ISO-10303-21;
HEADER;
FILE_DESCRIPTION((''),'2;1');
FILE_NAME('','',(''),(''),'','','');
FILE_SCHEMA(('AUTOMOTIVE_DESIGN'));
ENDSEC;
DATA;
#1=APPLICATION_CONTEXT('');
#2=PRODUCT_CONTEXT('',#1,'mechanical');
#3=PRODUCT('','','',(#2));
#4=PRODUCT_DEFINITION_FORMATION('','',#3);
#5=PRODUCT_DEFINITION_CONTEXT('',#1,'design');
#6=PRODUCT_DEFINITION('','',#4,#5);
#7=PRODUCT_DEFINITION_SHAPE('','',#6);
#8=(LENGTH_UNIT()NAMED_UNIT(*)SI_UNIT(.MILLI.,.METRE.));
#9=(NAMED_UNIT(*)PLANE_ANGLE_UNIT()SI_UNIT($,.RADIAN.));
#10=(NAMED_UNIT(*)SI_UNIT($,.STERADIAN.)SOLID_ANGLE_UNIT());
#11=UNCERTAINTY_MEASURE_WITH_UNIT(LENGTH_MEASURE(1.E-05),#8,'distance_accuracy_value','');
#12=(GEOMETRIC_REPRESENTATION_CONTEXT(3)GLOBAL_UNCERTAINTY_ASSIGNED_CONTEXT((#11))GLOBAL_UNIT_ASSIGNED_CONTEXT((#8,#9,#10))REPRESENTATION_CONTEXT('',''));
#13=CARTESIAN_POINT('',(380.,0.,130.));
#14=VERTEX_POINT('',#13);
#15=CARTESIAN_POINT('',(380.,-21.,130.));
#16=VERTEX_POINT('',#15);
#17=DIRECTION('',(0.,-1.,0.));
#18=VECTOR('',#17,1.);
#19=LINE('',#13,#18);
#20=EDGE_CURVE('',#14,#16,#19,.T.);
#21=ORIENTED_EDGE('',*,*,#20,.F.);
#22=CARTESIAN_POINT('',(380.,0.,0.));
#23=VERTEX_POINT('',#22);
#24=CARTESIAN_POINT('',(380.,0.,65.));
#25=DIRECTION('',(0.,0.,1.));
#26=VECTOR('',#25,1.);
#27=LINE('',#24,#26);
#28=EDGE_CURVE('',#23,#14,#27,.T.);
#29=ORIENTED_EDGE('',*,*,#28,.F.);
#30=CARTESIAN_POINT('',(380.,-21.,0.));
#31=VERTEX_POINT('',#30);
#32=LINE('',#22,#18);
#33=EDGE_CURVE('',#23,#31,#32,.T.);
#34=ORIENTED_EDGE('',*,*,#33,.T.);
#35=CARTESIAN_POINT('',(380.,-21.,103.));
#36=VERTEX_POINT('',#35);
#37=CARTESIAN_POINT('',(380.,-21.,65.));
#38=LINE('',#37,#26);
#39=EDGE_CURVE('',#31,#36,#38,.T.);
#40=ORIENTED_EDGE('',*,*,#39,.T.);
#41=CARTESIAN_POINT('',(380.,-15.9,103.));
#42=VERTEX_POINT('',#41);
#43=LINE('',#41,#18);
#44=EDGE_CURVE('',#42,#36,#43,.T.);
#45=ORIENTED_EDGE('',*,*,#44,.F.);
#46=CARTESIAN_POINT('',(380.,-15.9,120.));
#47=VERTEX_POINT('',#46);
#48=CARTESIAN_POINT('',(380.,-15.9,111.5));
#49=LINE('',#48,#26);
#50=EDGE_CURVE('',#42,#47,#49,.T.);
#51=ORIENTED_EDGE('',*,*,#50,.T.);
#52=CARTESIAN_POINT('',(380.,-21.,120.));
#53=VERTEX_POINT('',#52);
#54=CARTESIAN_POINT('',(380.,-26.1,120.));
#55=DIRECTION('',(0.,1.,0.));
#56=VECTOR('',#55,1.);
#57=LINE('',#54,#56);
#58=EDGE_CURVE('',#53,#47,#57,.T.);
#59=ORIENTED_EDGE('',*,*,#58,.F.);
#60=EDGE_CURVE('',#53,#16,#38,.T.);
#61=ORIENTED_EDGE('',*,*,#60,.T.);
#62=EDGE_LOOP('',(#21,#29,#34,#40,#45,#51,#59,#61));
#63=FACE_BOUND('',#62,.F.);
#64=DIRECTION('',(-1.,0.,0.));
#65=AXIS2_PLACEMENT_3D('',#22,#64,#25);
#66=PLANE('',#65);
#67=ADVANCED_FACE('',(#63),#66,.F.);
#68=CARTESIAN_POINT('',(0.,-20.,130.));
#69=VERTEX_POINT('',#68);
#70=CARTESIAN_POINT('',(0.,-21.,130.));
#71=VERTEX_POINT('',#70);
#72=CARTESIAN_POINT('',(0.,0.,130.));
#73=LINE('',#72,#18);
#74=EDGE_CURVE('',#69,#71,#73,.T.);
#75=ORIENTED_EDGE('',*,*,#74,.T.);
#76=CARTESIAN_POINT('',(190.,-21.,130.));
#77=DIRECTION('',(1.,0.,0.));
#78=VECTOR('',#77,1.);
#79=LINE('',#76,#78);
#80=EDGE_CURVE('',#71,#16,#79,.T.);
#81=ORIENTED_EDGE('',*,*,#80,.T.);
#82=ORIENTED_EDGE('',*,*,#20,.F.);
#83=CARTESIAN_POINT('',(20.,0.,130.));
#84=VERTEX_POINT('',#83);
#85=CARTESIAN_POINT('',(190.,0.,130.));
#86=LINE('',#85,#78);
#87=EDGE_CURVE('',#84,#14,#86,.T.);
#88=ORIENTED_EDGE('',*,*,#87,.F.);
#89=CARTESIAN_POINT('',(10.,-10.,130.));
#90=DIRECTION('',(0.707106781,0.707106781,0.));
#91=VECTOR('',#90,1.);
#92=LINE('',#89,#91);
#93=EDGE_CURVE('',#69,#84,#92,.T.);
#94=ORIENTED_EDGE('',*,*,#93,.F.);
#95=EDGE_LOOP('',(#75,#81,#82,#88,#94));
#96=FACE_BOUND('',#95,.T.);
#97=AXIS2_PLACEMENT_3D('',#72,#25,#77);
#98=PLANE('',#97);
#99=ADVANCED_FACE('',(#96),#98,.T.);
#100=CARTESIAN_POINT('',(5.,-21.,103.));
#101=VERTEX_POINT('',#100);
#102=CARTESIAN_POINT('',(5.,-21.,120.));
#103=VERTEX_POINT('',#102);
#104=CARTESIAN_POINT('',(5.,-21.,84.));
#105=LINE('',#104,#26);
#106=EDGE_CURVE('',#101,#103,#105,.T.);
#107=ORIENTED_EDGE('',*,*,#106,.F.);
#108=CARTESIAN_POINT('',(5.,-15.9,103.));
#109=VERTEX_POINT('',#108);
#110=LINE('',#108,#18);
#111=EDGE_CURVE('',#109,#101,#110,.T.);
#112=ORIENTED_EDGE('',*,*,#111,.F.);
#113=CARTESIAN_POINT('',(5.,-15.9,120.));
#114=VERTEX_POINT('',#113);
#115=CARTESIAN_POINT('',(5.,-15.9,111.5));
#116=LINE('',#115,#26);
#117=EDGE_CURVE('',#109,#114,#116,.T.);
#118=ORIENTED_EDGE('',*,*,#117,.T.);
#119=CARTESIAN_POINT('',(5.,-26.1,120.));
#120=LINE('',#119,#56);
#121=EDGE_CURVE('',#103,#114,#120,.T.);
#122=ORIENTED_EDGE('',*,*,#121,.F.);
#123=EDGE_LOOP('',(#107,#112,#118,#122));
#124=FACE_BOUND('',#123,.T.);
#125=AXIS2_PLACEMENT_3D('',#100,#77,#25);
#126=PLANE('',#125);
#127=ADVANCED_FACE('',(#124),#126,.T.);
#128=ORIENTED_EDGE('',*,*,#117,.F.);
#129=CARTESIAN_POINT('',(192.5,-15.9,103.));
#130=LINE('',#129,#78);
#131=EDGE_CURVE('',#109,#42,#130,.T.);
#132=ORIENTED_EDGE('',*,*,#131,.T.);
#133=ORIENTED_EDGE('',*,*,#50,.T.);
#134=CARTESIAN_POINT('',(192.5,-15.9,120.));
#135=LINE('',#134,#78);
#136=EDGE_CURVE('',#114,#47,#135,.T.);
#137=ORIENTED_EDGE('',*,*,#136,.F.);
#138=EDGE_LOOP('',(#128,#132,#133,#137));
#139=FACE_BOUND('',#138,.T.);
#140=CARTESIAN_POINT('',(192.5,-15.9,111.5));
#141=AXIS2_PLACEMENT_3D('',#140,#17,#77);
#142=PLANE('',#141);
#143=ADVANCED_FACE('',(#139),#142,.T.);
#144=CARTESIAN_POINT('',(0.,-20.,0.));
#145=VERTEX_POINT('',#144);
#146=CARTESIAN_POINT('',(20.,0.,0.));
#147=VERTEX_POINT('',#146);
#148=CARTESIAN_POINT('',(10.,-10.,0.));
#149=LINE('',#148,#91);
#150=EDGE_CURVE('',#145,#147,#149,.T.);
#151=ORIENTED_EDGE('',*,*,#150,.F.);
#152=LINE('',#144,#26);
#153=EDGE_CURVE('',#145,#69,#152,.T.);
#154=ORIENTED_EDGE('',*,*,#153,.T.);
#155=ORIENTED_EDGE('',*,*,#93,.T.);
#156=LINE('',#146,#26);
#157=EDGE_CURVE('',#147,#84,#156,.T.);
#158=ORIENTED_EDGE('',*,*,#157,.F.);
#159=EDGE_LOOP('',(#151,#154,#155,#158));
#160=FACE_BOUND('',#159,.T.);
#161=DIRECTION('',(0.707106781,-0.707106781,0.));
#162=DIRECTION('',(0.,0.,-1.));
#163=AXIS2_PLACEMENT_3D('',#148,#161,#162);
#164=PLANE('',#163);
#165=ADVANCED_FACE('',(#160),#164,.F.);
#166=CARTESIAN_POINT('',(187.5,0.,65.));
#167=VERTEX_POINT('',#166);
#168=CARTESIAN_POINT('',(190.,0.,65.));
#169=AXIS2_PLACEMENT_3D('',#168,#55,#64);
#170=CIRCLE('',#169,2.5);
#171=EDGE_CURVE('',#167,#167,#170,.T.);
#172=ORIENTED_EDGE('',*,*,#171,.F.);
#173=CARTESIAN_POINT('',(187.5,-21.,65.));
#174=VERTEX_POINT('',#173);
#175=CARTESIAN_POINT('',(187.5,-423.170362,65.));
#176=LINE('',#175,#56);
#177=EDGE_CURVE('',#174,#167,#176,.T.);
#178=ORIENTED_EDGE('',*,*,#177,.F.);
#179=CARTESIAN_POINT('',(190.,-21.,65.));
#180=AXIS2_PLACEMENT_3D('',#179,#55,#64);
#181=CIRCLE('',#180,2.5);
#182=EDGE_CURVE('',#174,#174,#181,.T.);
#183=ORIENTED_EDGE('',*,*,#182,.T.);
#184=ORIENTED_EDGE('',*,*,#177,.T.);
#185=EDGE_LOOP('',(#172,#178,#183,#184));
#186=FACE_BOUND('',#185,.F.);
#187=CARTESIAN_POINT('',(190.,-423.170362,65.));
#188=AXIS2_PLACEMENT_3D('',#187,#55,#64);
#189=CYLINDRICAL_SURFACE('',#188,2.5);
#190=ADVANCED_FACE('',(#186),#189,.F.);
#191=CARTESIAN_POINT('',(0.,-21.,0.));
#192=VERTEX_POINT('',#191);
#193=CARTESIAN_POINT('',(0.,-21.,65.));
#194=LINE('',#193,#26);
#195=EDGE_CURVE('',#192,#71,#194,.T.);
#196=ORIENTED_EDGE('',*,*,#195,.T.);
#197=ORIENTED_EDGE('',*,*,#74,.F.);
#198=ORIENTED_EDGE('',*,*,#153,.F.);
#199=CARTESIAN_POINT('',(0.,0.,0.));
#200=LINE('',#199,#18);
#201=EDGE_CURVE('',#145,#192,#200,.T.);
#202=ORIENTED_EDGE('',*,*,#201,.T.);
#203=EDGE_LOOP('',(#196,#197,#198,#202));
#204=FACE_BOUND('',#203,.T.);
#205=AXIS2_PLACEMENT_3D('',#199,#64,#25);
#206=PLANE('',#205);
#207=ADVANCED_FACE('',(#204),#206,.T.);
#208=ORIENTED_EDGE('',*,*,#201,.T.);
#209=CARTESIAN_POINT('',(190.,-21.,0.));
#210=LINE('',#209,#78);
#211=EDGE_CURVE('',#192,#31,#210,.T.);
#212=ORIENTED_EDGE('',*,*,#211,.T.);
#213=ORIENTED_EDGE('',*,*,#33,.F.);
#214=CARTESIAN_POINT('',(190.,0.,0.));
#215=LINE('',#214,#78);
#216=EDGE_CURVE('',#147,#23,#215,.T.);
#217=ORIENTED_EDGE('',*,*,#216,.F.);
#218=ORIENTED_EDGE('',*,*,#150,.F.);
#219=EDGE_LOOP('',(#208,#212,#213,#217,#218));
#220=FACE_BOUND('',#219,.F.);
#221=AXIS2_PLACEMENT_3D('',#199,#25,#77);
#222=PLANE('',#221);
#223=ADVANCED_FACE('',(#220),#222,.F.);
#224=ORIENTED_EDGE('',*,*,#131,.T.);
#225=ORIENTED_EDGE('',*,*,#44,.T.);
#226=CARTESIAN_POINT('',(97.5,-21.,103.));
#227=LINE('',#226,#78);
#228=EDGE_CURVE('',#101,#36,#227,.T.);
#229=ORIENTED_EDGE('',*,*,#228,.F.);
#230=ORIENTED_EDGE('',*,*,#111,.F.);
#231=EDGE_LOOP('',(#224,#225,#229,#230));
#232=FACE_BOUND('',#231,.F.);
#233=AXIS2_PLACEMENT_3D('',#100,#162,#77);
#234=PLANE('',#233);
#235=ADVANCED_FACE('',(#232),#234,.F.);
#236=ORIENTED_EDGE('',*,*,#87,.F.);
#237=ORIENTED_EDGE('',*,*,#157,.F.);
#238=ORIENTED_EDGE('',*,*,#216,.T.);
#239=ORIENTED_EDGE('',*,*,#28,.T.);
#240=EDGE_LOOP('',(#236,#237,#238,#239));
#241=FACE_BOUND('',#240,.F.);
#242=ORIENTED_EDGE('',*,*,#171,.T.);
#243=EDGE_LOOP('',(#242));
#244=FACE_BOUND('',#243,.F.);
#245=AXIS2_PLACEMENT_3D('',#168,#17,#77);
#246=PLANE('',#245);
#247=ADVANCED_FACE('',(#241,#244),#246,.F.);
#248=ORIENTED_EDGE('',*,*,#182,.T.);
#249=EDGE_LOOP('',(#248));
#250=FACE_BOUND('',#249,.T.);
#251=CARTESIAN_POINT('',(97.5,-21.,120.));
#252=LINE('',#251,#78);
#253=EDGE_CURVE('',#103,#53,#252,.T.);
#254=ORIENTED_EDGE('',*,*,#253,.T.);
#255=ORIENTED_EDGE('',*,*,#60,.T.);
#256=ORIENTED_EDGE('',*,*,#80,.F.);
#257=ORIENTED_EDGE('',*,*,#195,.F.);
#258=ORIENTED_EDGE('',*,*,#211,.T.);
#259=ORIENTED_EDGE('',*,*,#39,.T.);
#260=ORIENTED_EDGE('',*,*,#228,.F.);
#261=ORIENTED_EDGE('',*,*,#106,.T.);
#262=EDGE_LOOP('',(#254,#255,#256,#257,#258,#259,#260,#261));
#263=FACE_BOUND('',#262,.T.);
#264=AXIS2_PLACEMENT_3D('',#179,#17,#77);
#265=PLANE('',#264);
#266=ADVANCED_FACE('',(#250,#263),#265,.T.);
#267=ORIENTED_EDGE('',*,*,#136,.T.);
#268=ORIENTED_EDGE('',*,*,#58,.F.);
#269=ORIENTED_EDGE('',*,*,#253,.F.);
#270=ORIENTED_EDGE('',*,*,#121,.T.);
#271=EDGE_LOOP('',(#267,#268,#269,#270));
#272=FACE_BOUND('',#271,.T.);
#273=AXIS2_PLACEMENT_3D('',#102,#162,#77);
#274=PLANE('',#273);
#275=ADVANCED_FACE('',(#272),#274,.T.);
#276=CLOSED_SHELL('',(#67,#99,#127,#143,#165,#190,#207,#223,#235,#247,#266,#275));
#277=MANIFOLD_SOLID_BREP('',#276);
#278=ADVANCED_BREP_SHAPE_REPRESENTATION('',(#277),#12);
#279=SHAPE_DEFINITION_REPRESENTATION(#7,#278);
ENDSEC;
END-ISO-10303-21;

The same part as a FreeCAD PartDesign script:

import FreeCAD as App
import Part
import Sketcher
Q = App.Units.Quantity


def edges_at(feature, points):
    """Names of the edges that pass closest to the given points."""
    edges = feature.Shape.Edges
    near = lambda p: min(range(len(edges)), key=lambda i: edges[i].distToShape(Part.Vertex(*p))[0])
    return sorted({f"Edge{near(p) + 1}" for p in points})

doc = App.newDocument("Part")
body = doc.addObject("PartDesign::Body", "Body")

sketch1 = body.newObject("Sketcher::SketchObject", "Sketch")
sketch1.AttachmentSupport = (doc.getObject("XZ_Plane"), [""])
sketch1.MapMode = "FlatFace"
sketch1.addGeometry(Part.LineSegment(App.Vector(0, 130, 0), App.Vector(0, 0, 0)), False)
sketch1.addGeometry(Part.LineSegment(App.Vector(0, 0, 0), App.Vector(380, 0, 0)), False)
sketch1.addGeometry(Part.LineSegment(App.Vector(380, 0, 0), App.Vector(380, 130, 0)), False)
sketch1.addGeometry(Part.LineSegment(App.Vector(380, 130, 0), App.Vector(0, 130, 0)), False)
sketch1.addConstraint(Sketcher.Constraint("Coincident", 0, 2, 1, 1))
sketch1.addConstraint(Sketcher.Constraint("Coincident", 1, 2, 2, 1))
sketch1.addConstraint(Sketcher.Constraint("Coincident", 2, 2, 3, 1))
sketch1.addConstraint(Sketcher.Constraint("Coincident", 3, 2, 0, 1))
sketch1.addConstraint(Sketcher.Constraint("Vertical", 0))
sketch1.addConstraint(Sketcher.Constraint("Horizontal", 1))
sketch1.addConstraint(Sketcher.Constraint("Vertical", 2))
sketch1.addConstraint(Sketcher.Constraint("Horizontal", 3))
sketch1.addConstraint(Sketcher.Constraint("Coincident", 0, 2, -1, 1))
sketch1.addConstraint(Sketcher.Constraint("DistanceX", 1, 1, 1, 2, Q("380 mm")))
sketch1.addConstraint(Sketcher.Constraint("DistanceY", 0, 2, 0, 1, Q("130 mm")))
pad1 = body.newObject("PartDesign::Pad", "Pad")
pad1.Profile = sketch1
pad1.Length = 21

sketch2 = body.newObject("Sketcher::SketchObject", "Sketch001")
sketch2.AttachmentSupport = (doc.getObject("XZ_Plane"), [""])
sketch2.MapMode = "FlatFace"
sketch2.AttachmentOffset = App.Placement(App.Vector(0, 0, 21), App.Rotation())
sketch2.addGeometry(Part.LineSegment(App.Vector(5, 120, 0), App.Vector(5, 103, 0)), False)
sketch2.addGeometry(Part.LineSegment(App.Vector(5, 103, 0), App.Vector(380, 103, 0)), False)
sketch2.addGeometry(Part.LineSegment(App.Vector(380, 103, 0), App.Vector(380, 120, 0)), False)
sketch2.addGeometry(Part.LineSegment(App.Vector(380, 120, 0), App.Vector(5, 120, 0)), False)
sketch2.addConstraint(Sketcher.Constraint("Coincident", 0, 2, 1, 1))
sketch2.addConstraint(Sketcher.Constraint("Coincident", 1, 2, 2, 1))
sketch2.addConstraint(Sketcher.Constraint("Coincident", 2, 2, 3, 1))
sketch2.addConstraint(Sketcher.Constraint("Coincident", 3, 2, 0, 1))
sketch2.addConstraint(Sketcher.Constraint("Vertical", 0))
sketch2.addConstraint(Sketcher.Constraint("Horizontal", 1))
sketch2.addConstraint(Sketcher.Constraint("Vertical", 2))
sketch2.addConstraint(Sketcher.Constraint("Horizontal", 3))
sketch2.addConstraint(Sketcher.Constraint("DistanceX", 1, 1, 1, 2, Q("375 mm")))
sketch2.addConstraint(Sketcher.Constraint("DistanceY", 0, 2, 0, 1, Q("17 mm")))
sketch2.addConstraint(Sketcher.Constraint("DistanceX", -1, 1, 0, 2, Q("5 mm")))
sketch2.addConstraint(Sketcher.Constraint("DistanceY", -1, 1, 0, 2, Q("103 mm")))
pocket1 = body.newObject("PartDesign::Pocket", "Pocket")
pocket1.Profile = sketch2
pocket1.Length = 10.2
pocket1.Midplane = True
doc.recompute()

chamfer = body.newObject("PartDesign::Chamfer", "Chamfer")
chamfer.Base = (pocket1, edges_at(pocket1, [(0, 0, 65)]))
chamfer.Size = 20

sketch3 = body.newObject("Sketcher::SketchObject", "Sketch002")
sketch3.AttachmentSupport = (doc.getObject("XZ_Plane"), [""])
sketch3.MapMode = "FlatFace"
sketch3.AttachmentOffset = App.Placement(App.Vector(0, 0, 21), App.Rotation())
sketch3.addGeometry(Part.Circle(App.Vector(190, 65, 0), App.Vector(0, 0, 1), 2.5), False)
sketch3.addConstraint(Sketcher.Constraint("Diameter", 0, Q("5 mm")))
sketch3.addConstraint(Sketcher.Constraint("DistanceX", -1, 1, 0, 3, Q("190 mm")))
sketch3.addConstraint(Sketcher.Constraint("DistanceY", -1, 1, 0, 3, Q("65 mm")))
doc.recompute()
hole = body.newObject("PartDesign::Hole", "Hole")
hole.Profile = sketch3
hole.ThreadType = "None"
hole.Diameter = 5
hole.DepthType = "ThroughAll"

doc.recompute()
